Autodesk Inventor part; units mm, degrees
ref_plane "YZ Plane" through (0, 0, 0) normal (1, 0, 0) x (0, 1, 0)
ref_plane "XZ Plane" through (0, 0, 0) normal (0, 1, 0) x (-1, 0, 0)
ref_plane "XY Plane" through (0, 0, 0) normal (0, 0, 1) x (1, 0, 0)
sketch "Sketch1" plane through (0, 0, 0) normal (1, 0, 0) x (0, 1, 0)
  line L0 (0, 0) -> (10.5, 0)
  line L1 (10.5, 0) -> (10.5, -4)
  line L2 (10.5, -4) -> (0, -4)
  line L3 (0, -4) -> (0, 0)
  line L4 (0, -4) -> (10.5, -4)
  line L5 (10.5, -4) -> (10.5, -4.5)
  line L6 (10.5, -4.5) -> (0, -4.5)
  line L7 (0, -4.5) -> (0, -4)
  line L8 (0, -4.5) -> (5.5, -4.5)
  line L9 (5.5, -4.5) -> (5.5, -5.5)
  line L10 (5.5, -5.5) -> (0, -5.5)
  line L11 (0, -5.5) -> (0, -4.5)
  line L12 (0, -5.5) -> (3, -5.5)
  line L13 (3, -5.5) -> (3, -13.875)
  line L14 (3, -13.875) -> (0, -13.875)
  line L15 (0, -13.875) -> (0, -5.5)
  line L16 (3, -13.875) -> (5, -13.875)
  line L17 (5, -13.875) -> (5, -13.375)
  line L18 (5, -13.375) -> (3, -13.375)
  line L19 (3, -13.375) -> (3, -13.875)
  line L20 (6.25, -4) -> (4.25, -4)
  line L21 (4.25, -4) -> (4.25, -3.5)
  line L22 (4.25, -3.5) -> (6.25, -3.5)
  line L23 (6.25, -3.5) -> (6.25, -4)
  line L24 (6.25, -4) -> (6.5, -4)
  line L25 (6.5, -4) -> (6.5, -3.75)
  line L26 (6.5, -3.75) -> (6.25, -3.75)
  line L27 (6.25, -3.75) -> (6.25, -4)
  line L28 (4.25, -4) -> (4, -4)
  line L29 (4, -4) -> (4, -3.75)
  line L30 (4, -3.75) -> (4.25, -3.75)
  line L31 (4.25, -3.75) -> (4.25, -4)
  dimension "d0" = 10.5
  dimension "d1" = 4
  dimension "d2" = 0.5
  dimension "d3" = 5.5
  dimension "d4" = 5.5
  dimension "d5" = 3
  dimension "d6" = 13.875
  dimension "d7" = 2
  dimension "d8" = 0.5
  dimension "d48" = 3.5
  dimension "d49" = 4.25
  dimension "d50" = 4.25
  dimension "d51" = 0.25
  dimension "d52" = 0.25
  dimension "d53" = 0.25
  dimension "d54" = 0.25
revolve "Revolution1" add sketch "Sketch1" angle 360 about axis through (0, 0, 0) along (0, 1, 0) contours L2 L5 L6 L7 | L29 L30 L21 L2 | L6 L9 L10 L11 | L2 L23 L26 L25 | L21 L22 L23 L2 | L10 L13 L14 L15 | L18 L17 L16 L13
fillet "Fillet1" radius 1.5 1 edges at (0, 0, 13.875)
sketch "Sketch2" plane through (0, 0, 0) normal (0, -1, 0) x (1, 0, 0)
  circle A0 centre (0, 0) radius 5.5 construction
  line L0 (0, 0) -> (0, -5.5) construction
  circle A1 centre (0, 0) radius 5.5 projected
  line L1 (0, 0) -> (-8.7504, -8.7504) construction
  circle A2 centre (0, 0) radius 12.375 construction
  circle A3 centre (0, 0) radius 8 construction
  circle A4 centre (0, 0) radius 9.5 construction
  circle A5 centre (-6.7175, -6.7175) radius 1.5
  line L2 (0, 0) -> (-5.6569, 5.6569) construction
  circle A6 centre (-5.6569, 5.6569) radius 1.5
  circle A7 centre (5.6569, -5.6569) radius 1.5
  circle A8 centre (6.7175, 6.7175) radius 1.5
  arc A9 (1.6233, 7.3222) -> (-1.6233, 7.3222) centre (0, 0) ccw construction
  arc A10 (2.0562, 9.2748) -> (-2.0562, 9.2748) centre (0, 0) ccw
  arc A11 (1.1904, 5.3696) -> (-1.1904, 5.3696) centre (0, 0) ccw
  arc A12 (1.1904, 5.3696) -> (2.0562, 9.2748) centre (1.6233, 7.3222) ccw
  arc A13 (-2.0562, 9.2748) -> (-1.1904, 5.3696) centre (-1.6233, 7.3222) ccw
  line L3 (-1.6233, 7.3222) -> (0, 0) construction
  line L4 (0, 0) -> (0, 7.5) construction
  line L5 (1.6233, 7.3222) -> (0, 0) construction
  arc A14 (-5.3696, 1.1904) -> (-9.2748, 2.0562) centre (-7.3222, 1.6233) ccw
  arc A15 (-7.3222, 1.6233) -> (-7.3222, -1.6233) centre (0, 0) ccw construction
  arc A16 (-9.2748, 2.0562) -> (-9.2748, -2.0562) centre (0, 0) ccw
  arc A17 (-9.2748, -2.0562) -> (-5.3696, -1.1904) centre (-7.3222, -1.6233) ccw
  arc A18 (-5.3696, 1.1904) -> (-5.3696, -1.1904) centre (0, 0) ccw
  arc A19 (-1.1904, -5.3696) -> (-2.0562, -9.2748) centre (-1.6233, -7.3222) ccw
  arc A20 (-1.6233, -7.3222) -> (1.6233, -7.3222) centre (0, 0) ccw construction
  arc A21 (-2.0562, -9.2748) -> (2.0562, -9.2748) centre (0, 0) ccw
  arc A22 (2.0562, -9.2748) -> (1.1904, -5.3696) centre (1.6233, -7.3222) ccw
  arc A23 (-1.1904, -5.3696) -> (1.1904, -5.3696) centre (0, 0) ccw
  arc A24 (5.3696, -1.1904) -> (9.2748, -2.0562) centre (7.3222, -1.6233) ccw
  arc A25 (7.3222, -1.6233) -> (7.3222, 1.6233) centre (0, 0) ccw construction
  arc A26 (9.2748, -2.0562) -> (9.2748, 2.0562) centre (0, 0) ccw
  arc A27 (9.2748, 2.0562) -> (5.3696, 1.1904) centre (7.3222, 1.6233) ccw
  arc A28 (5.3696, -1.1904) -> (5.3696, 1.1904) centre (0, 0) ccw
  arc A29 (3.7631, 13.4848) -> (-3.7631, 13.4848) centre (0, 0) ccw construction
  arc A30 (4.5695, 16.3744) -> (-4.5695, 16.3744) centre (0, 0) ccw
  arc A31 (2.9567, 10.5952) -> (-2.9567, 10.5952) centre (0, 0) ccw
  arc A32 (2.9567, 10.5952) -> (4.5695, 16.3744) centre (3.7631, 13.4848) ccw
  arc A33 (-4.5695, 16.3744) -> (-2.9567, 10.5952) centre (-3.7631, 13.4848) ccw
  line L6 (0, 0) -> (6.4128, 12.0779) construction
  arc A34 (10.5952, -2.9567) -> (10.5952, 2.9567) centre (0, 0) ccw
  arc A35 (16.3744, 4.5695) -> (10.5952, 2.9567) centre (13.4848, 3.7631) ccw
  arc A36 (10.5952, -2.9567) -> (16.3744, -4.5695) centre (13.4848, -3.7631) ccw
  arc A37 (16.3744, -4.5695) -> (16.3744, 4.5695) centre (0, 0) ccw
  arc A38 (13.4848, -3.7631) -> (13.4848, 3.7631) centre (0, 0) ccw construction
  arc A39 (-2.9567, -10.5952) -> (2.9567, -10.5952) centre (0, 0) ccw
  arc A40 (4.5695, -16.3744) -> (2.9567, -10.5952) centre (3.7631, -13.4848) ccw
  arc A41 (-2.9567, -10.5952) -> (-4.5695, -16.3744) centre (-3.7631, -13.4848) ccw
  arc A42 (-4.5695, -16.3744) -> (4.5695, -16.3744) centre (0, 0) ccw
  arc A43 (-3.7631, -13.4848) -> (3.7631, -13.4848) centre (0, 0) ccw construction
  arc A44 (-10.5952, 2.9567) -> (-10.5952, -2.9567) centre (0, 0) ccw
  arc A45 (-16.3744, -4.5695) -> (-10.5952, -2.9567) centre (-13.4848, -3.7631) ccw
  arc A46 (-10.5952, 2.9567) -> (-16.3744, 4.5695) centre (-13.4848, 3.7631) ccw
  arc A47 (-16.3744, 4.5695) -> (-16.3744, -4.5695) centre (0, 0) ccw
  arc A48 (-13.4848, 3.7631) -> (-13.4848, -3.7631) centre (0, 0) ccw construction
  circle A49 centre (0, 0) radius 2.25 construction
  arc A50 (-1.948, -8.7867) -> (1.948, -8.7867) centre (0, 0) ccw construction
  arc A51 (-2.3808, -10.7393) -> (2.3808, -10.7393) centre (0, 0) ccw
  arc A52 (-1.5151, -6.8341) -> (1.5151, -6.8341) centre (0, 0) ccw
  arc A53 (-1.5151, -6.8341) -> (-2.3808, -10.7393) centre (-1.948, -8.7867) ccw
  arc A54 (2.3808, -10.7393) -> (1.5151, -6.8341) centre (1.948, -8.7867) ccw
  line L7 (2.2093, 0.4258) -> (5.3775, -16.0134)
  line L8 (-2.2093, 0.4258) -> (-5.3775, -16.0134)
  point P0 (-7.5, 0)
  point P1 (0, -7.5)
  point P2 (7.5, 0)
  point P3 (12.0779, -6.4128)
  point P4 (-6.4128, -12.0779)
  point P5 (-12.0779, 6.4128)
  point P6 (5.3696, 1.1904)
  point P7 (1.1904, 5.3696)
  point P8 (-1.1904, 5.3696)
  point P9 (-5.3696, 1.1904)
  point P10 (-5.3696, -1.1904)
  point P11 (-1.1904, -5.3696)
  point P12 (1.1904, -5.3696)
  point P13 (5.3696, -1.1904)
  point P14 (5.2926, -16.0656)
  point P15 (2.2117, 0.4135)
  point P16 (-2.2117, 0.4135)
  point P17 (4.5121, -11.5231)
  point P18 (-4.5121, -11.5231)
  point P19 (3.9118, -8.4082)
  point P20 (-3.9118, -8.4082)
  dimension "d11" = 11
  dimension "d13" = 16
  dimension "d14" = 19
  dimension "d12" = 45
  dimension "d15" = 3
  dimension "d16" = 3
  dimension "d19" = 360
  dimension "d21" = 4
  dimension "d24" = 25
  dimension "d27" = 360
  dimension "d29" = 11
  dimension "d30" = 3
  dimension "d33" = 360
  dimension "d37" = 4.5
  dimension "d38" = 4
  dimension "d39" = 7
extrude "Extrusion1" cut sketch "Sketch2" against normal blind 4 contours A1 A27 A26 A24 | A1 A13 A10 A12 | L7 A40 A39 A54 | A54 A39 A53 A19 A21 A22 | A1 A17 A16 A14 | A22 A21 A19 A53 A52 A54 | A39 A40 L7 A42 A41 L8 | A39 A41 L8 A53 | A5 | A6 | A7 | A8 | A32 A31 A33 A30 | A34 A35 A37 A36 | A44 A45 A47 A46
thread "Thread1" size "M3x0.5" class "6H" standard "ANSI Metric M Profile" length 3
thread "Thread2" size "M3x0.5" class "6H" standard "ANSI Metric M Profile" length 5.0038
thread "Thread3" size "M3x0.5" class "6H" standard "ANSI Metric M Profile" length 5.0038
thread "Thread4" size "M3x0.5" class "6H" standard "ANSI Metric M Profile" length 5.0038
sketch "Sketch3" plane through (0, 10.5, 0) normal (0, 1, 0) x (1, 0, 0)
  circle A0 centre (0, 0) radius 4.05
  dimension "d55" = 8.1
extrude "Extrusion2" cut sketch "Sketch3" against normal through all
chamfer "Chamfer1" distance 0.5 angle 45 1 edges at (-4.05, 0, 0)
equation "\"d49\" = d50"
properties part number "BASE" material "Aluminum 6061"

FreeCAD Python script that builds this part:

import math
import FreeCAD as App
import Part
import Sketcher

V = App.Vector
Q = App.Units.Quantity


def edges_at(feature, points):
    """Names of the edges that pass closest to the given points."""
    edges = feature.Shape.Edges
    near = lambda p: min(range(len(edges)), key=lambda i: edges[i].distToShape(Part.Vertex(*p))[0])
    return sorted({f"Edge{near(p) + 1}" for p in points})


def add_polygon(sketch, points):
    """Adds a closed chain of lines whose ends are joined by coincident constraints."""
    first, n = sketch.GeometryCount, len(points)
    for a, b in zip(points, points[1:] + points[:1]):
        sketch.addGeometry(Part.LineSegment(App.Vector(*a, 0), App.Vector(*b, 0)), False)
    for i in range(n):
        sketch.addConstraint(Sketcher.Constraint("Coincident", first + i, 2, first + (i + 1) % n, 1))

doc = App.newDocument("Part")
body = doc.addObject("PartDesign::Body", "Body")

sketch1 = body.newObject("Sketcher::SketchObject", "Sketch")
sketch1.AttachmentSupport = (doc.getObject("YZ_Plane"), [""])
sketch1.MapMode = "FlatFace"
add_polygon(sketch1, [(4, -4), (0, -4), (0, -13.88), (5, -13.88), (5, -13.38), (3, -13.38), (3, -5.5), (5.5, -5.5), (5.5, -4.5), (10.5, -4.5), (10.5, -4), (6.5, -4), (6.5, -3.75), (6.25, -3.75), (6.25, -3.5), (4.25, -3.5), (4.25, -3.75), (4, -3.75)])
sketch1.addConstraint([
    Sketcher.Constraint("Horizontal", 0),
    Sketcher.Constraint("Vertical", 1),
    Sketcher.Constraint("Horizontal", 2),
    Sketcher.Constraint("Vertical", 3),
    Sketcher.Constraint("Horizontal", 4),
    Sketcher.Constraint("Vertical", 5),
    Sketcher.Constraint("Horizontal", 6),
    Sketcher.Constraint("Vertical", 7),
    Sketcher.Constraint("Horizontal", 8),
    Sketcher.Constraint("Vertical", 9),
    Sketcher.Constraint("Horizontal", 10),
    Sketcher.Constraint("Vertical", 11),
    Sketcher.Constraint("Horizontal", 12),
    Sketcher.Constraint("Vertical", 13),
    Sketcher.Constraint("Horizontal", 14),
    Sketcher.Constraint("Vertical", 15),
    Sketcher.Constraint("Horizontal", 16),
    Sketcher.Constraint("Vertical", 17),
    Sketcher.Constraint("PointOnObject", 0, 2, -2),
    Sketcher.Constraint("Horizontal", 0, 2, 9, 2),
    Sketcher.Constraint("Horizontal", 12, 2, 15, 2),
    Sketcher.Constraint("Equal", 2, 8),
    Sketcher.Constraint("Equal", 0, 10),
    Sketcher.Constraint("Equal", 4, 14),
    Sketcher.Constraint("Equal", 12, 16),
    Sketcher.Constraint("Equal", 3, 9),
    Sketcher.Constraint("Equal", 16, 11),
    Sketcher.Constraint("Equal", 11, 13),
    Sketcher.Constraint("DistanceX", 0, 2, 0, 1, Q("4 mm")),
    Sketcher.Constraint("DistanceX", 4, 2, 4, 1, Q("2 mm")),
    Sketcher.Constraint("DistanceY", 3, 1, 3, 2, Q("0.5 mm")),
    Sketcher.Constraint("DistanceY", 0, 2, -1, 1, Q("4 mm")),
    Sketcher.Constraint("DistanceX", -1, 1, 4, 2, Q("3 mm")),
    Sketcher.Constraint("DistanceY", 6, 2, 13, 2, Q("2 mm")),
    Sketcher.Constraint("DistanceX", 12, 2, 12, 1, Q("0.25 mm")),
    Sketcher.Constraint("DistanceY", 1, 2, -1, 1, Q("13.875 mm")),
])
revolution = body.newObject("PartDesign::Revolution", "Revolution")
revolution.Profile = sketch1
revolution.ReferenceAxis = (sketch1, ["H_Axis"])
revolution.Angle = 360
doc.recompute()

fillet = body.newObject("PartDesign::Fillet", "Fillet")
fillet.Base = (revolution, edges_at(revolution, [(0, 0, 13.875)]))
fillet.Radius = 1.5

sketch2 = body.newObject("Sketcher::SketchObject", "Sketch001")
sketch2.AttachmentSupport = (doc.getObject("XZ_Plane"), [""])
sketch2.MapMode = "FlatFace"
sketch2.addGeometry([
    Part.ArcOfCircle(Part.Circle(V(0, 0, 0), V(0, 0, 1), 5.5), math.radians(-12), math.radians(12)),
    Part.ArcOfCircle(Part.Circle(V(7.3, -1.6, 0), V(0, 0, 1), 2), math.radians(167), math.radians(347)),
    Part.ArcOfCircle(Part.Circle(V(0, 0, 0), V(0, 0, 1), 9.5), math.radians(-13), math.radians(13)),
    Part.ArcOfCircle(Part.Circle(V(7.3, 1.6, 0), V(0, 0, 1), 2), math.radians(13), math.radians(193)),
    Part.ArcOfCircle(Part.Circle(V(0, 0, 0), V(0, 0, 1), 5.5), math.radians(78), math.radians(102)),
    Part.ArcOfCircle(Part.Circle(V(1.6, 7.3, 0), V(0, 0, 1), 2), math.radians(-103), math.radians(77)),
    Part.ArcOfCircle(Part.Circle(V(0, 0, 0), V(0, 0, 1), 9.5), math.radians(77), math.radians(103)),
    Part.ArcOfCircle(Part.Circle(V(-1.6, 7.3, 0), V(0, 0, 1), 2), math.radians(103), math.radians(283)),
    Part.ArcOfCircle(Part.Circle(V(1.9, -8.8, 0), V(0, 0, 1), 2), math.radians(11), math.radians(103)),
    Part.ArcOfCircle(Part.Circle(V(0, 0, 0), V(0, 0, 1), 7), math.radians(-103), math.radians(-77)),
    Part.ArcOfCircle(Part.Circle(V(-1.9, -8.8, 0), V(0, 0, 1), 2), math.radians(77), math.radians(169)),
    Part.LineSegment(V(-3.9, -8.4, 0), V(-5.4, -16, 0)),
    Part.ArcOfCircle(Part.Circle(V(-3.8, -13.5, 0), V(0, 0, 1), 3), math.radians(-122.56), math.radians(-105.59)),
    Part.ArcOfCircle(Part.Circle(V(0, 0, 0), V(0, 0, 1), 17), math.radians(-106), math.radians(-74)),
    Part.ArcOfCircle(Part.Circle(V(3.8, -13.5, 0), V(0, 0, 1), 3), math.radians(-74.41), math.radians(-57.44)),
    Part.LineSegment(V(5.4, -16, 0), V(3.9, -8.4, 0)),
    Part.ArcOfCircle(Part.Circle(V(0, 0, 0), V(0, 0, 1), 5.5), math.radians(168), math.radians(192)),
    Part.ArcOfCircle(Part.Circle(V(-7.3, 1.6, 0), V(0, 0, 1), 2), math.radians(-13), math.radians(167)),
    Part.ArcOfCircle(Part.Circle(V(0, 0, 0), V(0, 0, 1), 9.5), math.radians(167), math.radians(193)),
    Part.ArcOfCircle(Part.Circle(V(-7.3, -1.6, 0), V(0, 0, 1), 2), math.radians(-167), math.radians(13)),
    Part.Circle(V(-6.7, -6.7, 0), V(0, 0, 1), 1.5),
    Part.Circle(V(-5.7, 5.7, 0), V(0, 0, 1), 1.5),
    Part.Circle(V(5.7, -5.7, 0), V(0, 0, 1), 1.5),
    Part.Circle(V(6.7, 6.7, 0), V(0, 0, 1), 1.5),
    Part.ArcOfCircle(Part.Circle(V(3.8, 13.5, 0), V(0, 0, 1), 3), math.radians(-106), math.radians(74)),
    Part.ArcOfCircle(Part.Circle(V(0, 0, 0), V(0, 0, 1), 17), math.radians(74), math.radians(106)),
    Part.ArcOfCircle(Part.Circle(V(-3.8, 13.5, 0), V(0, 0, 1), 3), math.radians(106), math.radians(286)),
    Part.ArcOfCircle(Part.Circle(V(0, 0, 0), V(0, 0, 1), 11), math.radians(74), math.radians(106)),
    Part.ArcOfCircle(Part.Circle(V(0, 0, 0), V(0, 0, 1), 11), math.radians(-16), math.radians(16)),
    Part.ArcOfCircle(Part.Circle(V(13.5, -3.8, 0), V(0, 0, 1), 3), math.radians(164), math.radians(344)),
    Part.ArcOfCircle(Part.Circle(V(0, 0, 0), V(0, 0, 1), 17), math.radians(-16), math.radians(16)),
    Part.ArcOfCircle(Part.Circle(V(13.5, 3.8, 0), V(0, 0, 1), 3), math.radians(16), math.radians(196)),
    Part.ArcOfCircle(Part.Circle(V(0, 0, 0), V(0, 0, 1), 11), math.radians(164), math.radians(196)),
    Part.ArcOfCircle(Part.Circle(V(-13.5, 3.8, 0), V(0, 0, 1), 3), math.radians(-16), math.radians(164)),
    Part.ArcOfCircle(Part.Circle(V(0, 0, 0), V(0, 0, 1), 17), math.radians(164), math.radians(196)),
    Part.ArcOfCircle(Part.Circle(V(-13.5, -3.8, 0), V(0, 0, 1), 3), math.radians(-164), math.radians(16)),
], False)
sketch2.addConstraint([
    Sketcher.Constraint("Tangent", 0, 1, 1, 1),
    Sketcher.Constraint("Tangent", 1, 2, 2, 1),
    Sketcher.Constraint("Tangent", 2, 2, 3, 1),
    Sketcher.Constraint("Tangent", 3, 2, 0, 2),
    Sketcher.Constraint("Tangent", 4, 1, 5, 1),
    Sketcher.Constraint("Tangent", 5, 2, 6, 1),
    Sketcher.Constraint("Tangent", 6, 2, 7, 1),
    Sketcher.Constraint("Tangent", 7, 2, 4, 2),
    Sketcher.Constraint("Tangent", 8, 2, 9, 2),
    Sketcher.Constraint("Tangent", 9, 1, 10, 1),
    Sketcher.Constraint("Tangent", 10, 2, 11, 1),
    Sketcher.Constraint("Coincident", 11, 2, 12, 1),
    Sketcher.Constraint("Tangent", 12, 2, 13, 1),
    Sketcher.Constraint("Tangent", 13, 2, 14, 1),
    Sketcher.Constraint("Coincident", 14, 2, 15, 1),
    Sketcher.Constraint("Tangent", 15, 2, 8, 1),
    Sketcher.Constraint("Tangent", 16, 1, 17, 1),
    Sketcher.Constraint("Tangent", 17, 2, 18, 1),
    Sketcher.Constraint("Tangent", 18, 2, 19, 1),
    Sketcher.Constraint("Tangent", 19, 2, 16, 2),
    Sketcher.Constraint("Tangent", 24, 2, 25, 1),
    Sketcher.Constraint("Tangent", 25, 2, 26, 1),
    Sketcher.Constraint("Tangent", 26, 2, 27, 2),
    Sketcher.Constraint("Tangent", 27, 1, 24, 1),
    Sketcher.Constraint("Tangent", 28, 1, 29, 1),
    Sketcher.Constraint("Tangent", 29, 2, 30, 1),
    Sketcher.Constraint("Tangent", 30, 2, 31, 1),
    Sketcher.Constraint("Tangent", 31, 2, 28, 2),
    Sketcher.Constraint("Tangent", 32, 1, 33, 1),
    Sketcher.Constraint("Tangent", 33, 2, 34, 1),
    Sketcher.Constraint("Tangent", 34, 2, 35, 1),
    Sketcher.Constraint("Tangent", 35, 2, 32, 2),
    Sketcher.Constraint("Coincident", 0, 3, -1, 1),
    Sketcher.Constraint("Coincident", 2, 3, -1, 1),
    Sketcher.Constraint("Coincident", 4, 3, -1, 1),
    Sketcher.Constraint("Coincident", 6, 3, -1, 1),
    Sketcher.Constraint("Coincident", 9, 3, -1, 1),
    Sketcher.Constraint("Coincident", 13, 3, -1, 1),
    Sketcher.Constraint("Coincident", 16, 3, -1, 1),
    Sketcher.Constraint("Coincident", 18, 3, -1, 1),
    Sketcher.Constraint("Coincident", 25, 3, -1, 1),
    Sketcher.Constraint("Coincident", 27, 3, -1, 1),
    Sketcher.Constraint("Coincident", 28, 3, -1, 1),
    Sketcher.Constraint("Coincident", 30, 3, -1, 1),
    Sketcher.Constraint("Coincident", 32, 3, -1, 1),
    Sketcher.Constraint("Coincident", 34, 3, -1, 1),
    Sketcher.Constraint("Equal", 0, 4),
    Sketcher.Constraint("Equal", 3, 5),
    Sketcher.Constraint("Equal", 7, 8),
    Sketcher.Constraint("Equal", 8, 10),
    Sketcher.Constraint("Equal", 12, 14),
    Sketcher.Constraint("Equal", 4, 16),
    Sketcher.Constraint("Equal", 10, 17),
    Sketcher.Constraint("Equal", 20, 21),
    Sketcher.Constraint("Equal", 21, 22),
    Sketcher.Constraint("Equal", 22, 23),
    Sketcher.Constraint("Equal", 14, 24),
    Sketcher.Constraint("Equal", 13, 25),
    Sketcher.Constraint("Equal", 27, 28),
    Sketcher.Constraint("Equal", 26, 29),
    Sketcher.Constraint("Equal", 28, 32),
    Sketcher.Constraint("Equal", 31, 33),
    Sketcher.Constraint("Symmetric", 21, 3, 22, 3, -1, 1),
    Sketcher.Constraint("Symmetric", 20, 3, 23, 3, -1, 1),
    Sketcher.Constraint("Symmetric", 11, 2, 14, 2, -2),
    Sketcher.Constraint("Horizontal", 5, 3, 7, 3),
    Sketcher.Constraint("Horizontal", 8, 3, 10, 3),
    Sketcher.Constraint("Horizontal", 3, 3, 17, 3),
    Sketcher.Constraint("Horizontal", 1, 3, 19, 3),
    Sketcher.Constraint("Horizontal", 24, 3, 26, 3),
    Sketcher.Constraint("Horizontal", 31, 3, 33, 3),
    Sketcher.Constraint("Horizontal", 29, 3, 35, 3),
    Sketcher.Constraint("Vertical", 1, 3, 3, 3),
    Sketcher.Constraint("Vertical", 14, 3, 24, 3),
    Sketcher.Constraint("Vertical", 29, 3, 31, 3),
    Sketcher.Constraint("Diameter", 20, Q("3 mm")),
    Sketcher.Constraint("Radius", 1, Q("2 mm")),
    Sketcher.Constraint("Radius", 9, Q("7 mm")),
    Sketcher.Constraint("Radius", 12, Q("3 mm")),
    Sketcher.Constraint("Radius", 27, Q("11 mm")),
    Sketcher.Constraint("Radius", 0, Q("5.5 mm")),
    Sketcher.Constraint("DistanceX", -1, 1, 8, 3, Q("1.948 mm")),
    Sketcher.Constraint("DistanceX", 12, 3, -1, 1, Q("3.763 mm")),
    Sketcher.Constraint("DistanceX", 21, 3, -1, 1, Q("5.657 mm")),
    Sketcher.Constraint("DistanceY", -1, 1, 21, 3, Q("5.657 mm")),
    Sketcher.Constraint("DistanceY", 29, 3, -1, 1, Q("3.763 mm")),
    Sketcher.Constraint("Distance", 11, Q("7.7451 mm")),
    Sketcher.Constraint("DistanceX", -1, 1, 1, 3, Q("7.3222 mm")),
    Sketcher.Constraint("DistanceX", -1, 1, 5, 3, Q("1.6233 mm")),
    Sketcher.Constraint("DistanceX", 20, 3, -1, 1, Q("6.7175 mm")),
    Sketcher.Constraint("DistanceY", 20, 3, -1, 1, Q("6.7175 mm")),
])
pocket1 = body.newObject("PartDesign::Pocket", "Pocket")
pocket1.Profile = sketch2
pocket1.Length = 4

sketch3 = body.newObject("Sketcher::SketchObject", "Sketch002")
sketch3.AttachmentSupport = (doc.getObject("XZ_Plane"), [""])
sketch3.MapMode = "FlatFace"
sketch3.AttachmentOffset = App.Placement(V(0, 0, -10.5), App.Rotation())
sketch3.addGeometry(Part.Circle(V(0, 0, 0), V(0, 0, 1), 4), False)
sketch3.addConstraint([
    Sketcher.Constraint("Coincident", 0, 3, -1, 1),
    Sketcher.Constraint("Diameter", 0, Q("8.1 mm")),
])
pocket2 = body.newObject("PartDesign::Pocket", "Pocket001")
pocket2.Profile = sketch3
pocket2.Type = "ThroughAll"
pocket2.Reversed = True
doc.recompute()

chamfer = body.newObject("PartDesign::Chamfer", "Chamfer")
chamfer.Base = (pocket2, edges_at(pocket2, [(-4.05, 0, 0)]))
chamfer.Size = 0.5

doc.recompute()
